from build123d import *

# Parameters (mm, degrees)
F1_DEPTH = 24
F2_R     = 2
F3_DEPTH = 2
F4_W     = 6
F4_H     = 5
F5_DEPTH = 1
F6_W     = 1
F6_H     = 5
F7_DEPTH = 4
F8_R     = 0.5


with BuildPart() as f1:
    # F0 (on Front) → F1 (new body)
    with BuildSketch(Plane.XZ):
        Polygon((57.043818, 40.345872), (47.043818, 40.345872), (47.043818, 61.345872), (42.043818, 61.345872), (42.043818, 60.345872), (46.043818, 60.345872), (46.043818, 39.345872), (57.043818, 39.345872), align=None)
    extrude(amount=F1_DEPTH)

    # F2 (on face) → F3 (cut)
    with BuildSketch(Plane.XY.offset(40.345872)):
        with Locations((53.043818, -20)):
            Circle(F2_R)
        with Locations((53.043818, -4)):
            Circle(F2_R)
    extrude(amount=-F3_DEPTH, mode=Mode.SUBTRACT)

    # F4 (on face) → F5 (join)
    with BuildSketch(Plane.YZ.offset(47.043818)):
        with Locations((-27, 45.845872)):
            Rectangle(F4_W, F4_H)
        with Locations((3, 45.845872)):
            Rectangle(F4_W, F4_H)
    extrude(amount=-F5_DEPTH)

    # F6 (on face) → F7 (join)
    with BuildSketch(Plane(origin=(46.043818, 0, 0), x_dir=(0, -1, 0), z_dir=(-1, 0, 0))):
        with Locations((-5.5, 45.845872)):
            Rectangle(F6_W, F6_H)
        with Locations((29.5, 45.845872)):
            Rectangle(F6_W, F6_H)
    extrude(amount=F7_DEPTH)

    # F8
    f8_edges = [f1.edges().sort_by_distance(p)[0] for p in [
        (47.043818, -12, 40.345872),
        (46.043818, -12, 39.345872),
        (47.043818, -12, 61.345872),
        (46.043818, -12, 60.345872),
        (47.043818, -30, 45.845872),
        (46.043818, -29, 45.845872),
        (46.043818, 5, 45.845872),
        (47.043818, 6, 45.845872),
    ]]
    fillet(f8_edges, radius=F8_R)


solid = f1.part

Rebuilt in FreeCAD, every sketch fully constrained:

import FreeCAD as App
import Part
import Sketcher

V = App.Vector


def edges_at(feature, points):
    """Names of the edges that pass closest to the given points."""
    edges = feature.Shape.Edges
    near = lambda p: min(range(len(edges)), key=lambda i: edges[i].distToShape(Part.Vertex(*p))[0])
    return sorted({f"Edge{near(p) + 1}" for p in points})

doc = App.newDocument("Part")
body = doc.addObject("PartDesign::Body", "Body")

sketch1 = body.newObject("Sketcher::SketchObject", "Sketch")
sketch1.AttachmentSupport = (doc.getObject("XZ_Plane"), [""])
sketch1.MapMode = "FlatFace"
sketch1.addGeometry([
    Part.LineSegment(V(57, 40.3, 0), V(47, 40.3, 0)),
    Part.LineSegment(V(47, 40.3, 0), V(47, 61.3, 0)),
    Part.LineSegment(V(47, 61.3, 0), V(42, 61.3, 0)),
    Part.LineSegment(V(42, 61.3, 0), V(42, 60.3, 0)),
    Part.LineSegment(V(42, 60.3, 0), V(46, 60.3, 0)),
    Part.LineSegment(V(46, 60.3, 0), V(46, 39.3, 0)),
    Part.LineSegment(V(46, 39.3, 0), V(57, 39.3, 0)),
    Part.LineSegment(V(57, 39.3, 0), V(57, 40.3, 0)),
], False)
sketch1.addConstraint([
    Sketcher.Constraint("Coincident", 0, 2, 1, 1),
    Sketcher.Constraint("Coincident", 1, 2, 2, 1),
    Sketcher.Constraint("Coincident", 2, 2, 3, 1),
    Sketcher.Constraint("Coincident", 3, 2, 4, 1),
    Sketcher.Constraint("Coincident", 4, 2, 5, 1),
    Sketcher.Constraint("Coincident", 5, 2, 6, 1),
    Sketcher.Constraint("Coincident", 6, 2, 7, 1),
    Sketcher.Constraint("Coincident", 7, 2, 0, 1),
    Sketcher.Constraint("Horizontal", 0),
    Sketcher.Constraint("Vertical", 1),
    Sketcher.Constraint("Horizontal", 2),
    Sketcher.Constraint("Vertical", 3),
    Sketcher.Constraint("Horizontal", 4),
    Sketcher.Constraint("Vertical", 5),
    Sketcher.Constraint("Horizontal", 6),
    Sketcher.Constraint("Vertical", 7),
    Sketcher.Constraint("Equal", 1, 5),
    Sketcher.Constraint("DistanceX", 0, 2, 0, 1, 10.0),
    Sketcher.Constraint("DistanceX", 2, 2, 2, 1, 5.0),
    Sketcher.Constraint("DistanceX", 4, 1, 4, 2, 4.0),
    Sketcher.Constraint("DistanceY", 1, 1, 1, 2, 21.0),
    Sketcher.Constraint("DistanceY", 3, 2, 3, 1, 1.0),
    Sketcher.Constraint("DistanceX", -1, 1, 0, 2, 47.043818),
    Sketcher.Constraint("DistanceY", -1, 1, 0, 2, 40.345872),
])
pad1 = body.newObject("PartDesign::Pad", "Pad")
pad1.Profile = sketch1
pad1.Length = 24

sketch2 = body.newObject("Sketcher::SketchObject", "Sketch001")
sketch2.AttachmentSupport = (doc.getObject("XY_Plane"), [""])
sketch2.MapMode = "FlatFace"
sketch2.AttachmentOffset = App.Placement(V(0, 0, 40.345872), App.Rotation())
sketch2.addGeometry([
    Part.Circle(V(53, -20, 0), V(0, 0, 1), 2),
    Part.Circle(V(53, -4, 0), V(0, 0, 1), 2),
], False)
sketch2.addConstraint([
    Sketcher.Constraint("Equal", 0, 1),
    Sketcher.Constraint("Vertical", 0, 3, 1, 3),
    Sketcher.Constraint("Diameter", 0, 4.0),
    Sketcher.Constraint("DistanceY", 0, 3, -1, 1, 20.0),
    Sketcher.Constraint("DistanceY", 1, 3, -1, 1, 4.0),
    Sketcher.Constraint("DistanceX", -1, 1, 0, 3, 53.043818),
])
pocket1 = body.newObject("PartDesign::Pocket", "Pocket")
pocket1.Profile = sketch2
pocket1.Length = 2

sketch3 = body.newObject("Sketcher::SketchObject", "Sketch002")
sketch3.AttachmentSupport = (doc.getObject("YZ_Plane"), [""])
sketch3.MapMode = "FlatFace"
sketch3.AttachmentOffset = App.Placement(V(0, 0, 47.043818), App.Rotation())
sketch3.addGeometry([
    Part.LineSegment(V(-30, 48, 0), V(-30, 43, 0)),
    Part.LineSegment(V(-30, 43, 0), V(-24, 43, 0)),
    Part.LineSegment(V(-24, 43, 0), V(-24, 48, 0)),
    Part.LineSegment(V(-24, 48, 0), V(-30, 48, 0)),
    Part.LineSegment(V(0, 48, 0), V(0, 43, 0)),
    Part.LineSegment(V(0, 43, 0), V(6, 43, 0)),
    Part.LineSegment(V(6, 43, 0), V(6, 48, 0)),
    Part.LineSegment(V(6, 48, 0), V(0, 48, 0)),
], False)
sketch3.addConstraint([
    Sketcher.Constraint("Coincident", 0, 2, 1, 1),
    Sketcher.Constraint("Coincident", 1, 2, 2, 1),
    Sketcher.Constraint("Coincident", 2, 2, 3, 1),
    Sketcher.Constraint("Coincident", 3, 2, 0, 1),
    Sketcher.Constraint("Coincident", 4, 2, 5, 1),
    Sketcher.Constraint("Coincident", 5, 2, 6, 1),
    Sketcher.Constraint("Coincident", 6, 2, 7, 1),
    Sketcher.Constraint("Coincident", 7, 2, 4, 1),
    Sketcher.Constraint("Vertical", 0),
    Sketcher.Constraint("Horizontal", 1),
    Sketcher.Constraint("Vertical", 2),
    Sketcher.Constraint("Horizontal", 3),
    Sketcher.Constraint("Vertical", 4),
    Sketcher.Constraint("Horizontal", 5),
    Sketcher.Constraint("Vertical", 6),
    Sketcher.Constraint("Horizontal", 7),
    Sketcher.Constraint("PointOnObject", 4, 2, -2),
    Sketcher.Constraint("Horizontal", 1, 2, 4, 2),
    Sketcher.Constraint("Horizontal", 3, 2, 6, 2),
    Sketcher.Constraint("Equal", 3, 5),
    Sketcher.Constraint("DistanceX", 1, 1, 1, 2, 6.0),
    Sketcher.Constraint("DistanceY", 0, 2, 0, 1, 5.0),
    Sketcher.Constraint("DistanceX", 0, 2, -1, 1, 30.0),
    Sketcher.Constraint("DistanceY", -1, 1, 0, 2, 43.345872),
])
pad2 = body.newObject("PartDesign::Pad", "Pad001")
pad2.Profile = sketch3
pad2.Length = 1
pad2.Reversed = True

sketch4 = body.newObject("Sketcher::SketchObject", "Sketch003")
sketch4.AttachmentSupport = (doc.getObject("YZ_Plane"), [""])
sketch4.MapMode = "FlatFace"
sketch4.AttachmentOffset = App.Placement(V(0, 0, 46.043818), App.Rotation())
sketch4.addGeometry([
    Part.LineSegment(V(6, 48.3, 0), V(6, 43.3, 0)),
    Part.LineSegment(V(6, 43.3, 0), V(5, 43.3, 0)),
    Part.LineSegment(V(5, 43.3, 0), V(5, 48.3, 0)),
    Part.LineSegment(V(5, 48.3, 0), V(6, 48.3, 0)),
    Part.LineSegment(V(-29, 48.3, 0), V(-29, 43.3, 0)),
    Part.LineSegment(V(-29, 43.3, 0), V(-30, 43.3, 0)),
    Part.LineSegment(V(-30, 43.3, 0), V(-30, 48.3, 0)),
    Part.LineSegment(V(-30, 48.3, 0), V(-29, 48.3, 0)),
], False)
sketch4.addConstraint([
    Sketcher.Constraint("Coincident", 0, 2, 1, 1),
    Sketcher.Constraint("Coincident", 1, 2, 2, 1),
    Sketcher.Constraint("Coincident", 2, 2, 3, 1),
    Sketcher.Constraint("Coincident", 3, 2, 0, 1),
    Sketcher.Constraint("Coincident", 4, 2, 5, 1),
    Sketcher.Constraint("Coincident", 5, 2, 6, 1),
    Sketcher.Constraint("Coincident", 6, 2, 7, 1),
    Sketcher.Constraint("Coincident", 7, 2, 4, 1),
    Sketcher.Constraint("Vertical", 0),
    Sketcher.Constraint("Horizontal", 1),
    Sketcher.Constraint("Vertical", 2),
    Sketcher.Constraint("Horizontal", 3),
    Sketcher.Constraint("Vertical", 4),
    Sketcher.Constraint("Horizontal", 5),
    Sketcher.Constraint("Vertical", 6),
    Sketcher.Constraint("Horizontal", 7),
    Sketcher.Constraint("Horizontal", 1, 2, 4, 2),
    Sketcher.Constraint("Horizontal", 3, 2, 6, 2),
    Sketcher.Constraint("Equal", 3, 5),
    Sketcher.Constraint("DistanceX", 1, 2, 1, 1, 1.0),
    Sketcher.Constraint("DistanceY", 0, 2, 0, 1, 5.0),
    Sketcher.Constraint("DistanceX", -1, 1, 0, 2, 6.0),
    Sketcher.Constraint("DistanceX", 4, 2, -1, 1, 29.0),
    Sketcher.Constraint("DistanceY", -1, 1, 0, 2, 43.345872),
])
pad3 = body.newObject("PartDesign::Pad", "Pad002")
pad3.Profile = sketch4
pad3.Length = 4
pad3.Reversed = True
doc.recompute()

fillet = body.newObject("PartDesign::Fillet", "Fillet")
fillet.Base = (pad3, edges_at(pad3, [
    (47.044, -12, 40.346),
    (46.044, -12, 39.346),
    (47.044, -12, 61.346),
    (46.044, -12, 60.346),
    (47.044, -30, 45.846),
    (46.044, -29, 45.846),
    (46.044, 5, 45.846),
    (47.044, 6, 45.846),
]))
fillet.Radius = 0.5

doc.recompute()
